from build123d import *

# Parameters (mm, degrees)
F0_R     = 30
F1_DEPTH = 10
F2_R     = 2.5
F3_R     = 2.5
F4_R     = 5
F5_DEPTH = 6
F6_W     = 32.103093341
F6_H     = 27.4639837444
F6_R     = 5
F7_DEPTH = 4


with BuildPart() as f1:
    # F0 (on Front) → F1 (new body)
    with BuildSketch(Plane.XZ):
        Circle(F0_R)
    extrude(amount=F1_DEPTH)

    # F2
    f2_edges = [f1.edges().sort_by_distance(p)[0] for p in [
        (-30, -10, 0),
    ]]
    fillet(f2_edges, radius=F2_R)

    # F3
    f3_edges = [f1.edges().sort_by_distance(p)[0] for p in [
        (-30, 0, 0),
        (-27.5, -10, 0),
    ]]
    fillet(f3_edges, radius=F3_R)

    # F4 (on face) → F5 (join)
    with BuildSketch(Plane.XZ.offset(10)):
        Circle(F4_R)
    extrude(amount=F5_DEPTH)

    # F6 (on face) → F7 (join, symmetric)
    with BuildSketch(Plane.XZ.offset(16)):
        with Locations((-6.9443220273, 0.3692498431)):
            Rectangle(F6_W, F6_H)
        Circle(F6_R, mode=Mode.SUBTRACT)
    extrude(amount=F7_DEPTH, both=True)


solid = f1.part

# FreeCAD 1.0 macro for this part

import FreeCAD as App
import Part
import Sketcher

V = App.Vector


def edges_at(feature, points):
    """Names of the edges that pass closest to the given points."""
    edges = feature.Shape.Edges
    near = lambda p: min(range(len(edges)), key=lambda i: edges[i].distToShape(Part.Vertex(*p))[0])
    return sorted({f"Edge{near(p) + 1}" for p in points})


def add_polygon(sketch, points):
    """Adds a closed chain of lines whose ends are joined by coincident constraints."""
    first, n = sketch.GeometryCount, len(points)
    for a, b in zip(points, points[1:] + points[:1]):
        sketch.addGeometry(Part.LineSegment(App.Vector(*a, 0), App.Vector(*b, 0)), False)
    for i in range(n):
        sketch.addConstraint(Sketcher.Constraint("Coincident", first + i, 2, first + (i + 1) % n, 1))

doc = App.newDocument("Part")
body = doc.addObject("PartDesign::Body", "Body")

# Sketch on XZ plane
sketch1 = body.newObject("Sketcher::SketchObject", "Sketch")
sketch1.AttachmentSupport = (doc.getObject("XZ_Plane"), [""])
sketch1.MapMode = "FlatFace"
sketch1.addGeometry(Part.Circle(V(0, 0, 0), V(0, 0, 1), 30), False)
sketch1.addConstraint(Sketcher.Constraint("Coincident", 0, 3, -1, 1))
sketch1.addConstraint(Sketcher.Constraint("Diameter", 0, 60.0))
pad1 = body.newObject("PartDesign::Pad", "Pad")
pad1.Profile = sketch1
pad1.Length = 10
doc.recompute()

fillet = body.newObject("PartDesign::Fillet", "Fillet")
fillet.Base = (pad1, edges_at(pad1, [(-30, -10, 0)]))
fillet.Radius = 2.5
doc.recompute()

fillet2 = body.newObject("PartDesign::Fillet", "Fillet001")
fillet2.Base = (fillet, edges_at(fillet, [(-30, 0, 0), (-27.5, -10, 0)]))
fillet2.Radius = 2.5

# Sketch on XZ plane
sketch2 = body.newObject("Sketcher::SketchObject", "Sketch001")
sketch2.AttachmentSupport = (doc.getObject("XZ_Plane"), [""])
sketch2.MapMode = "FlatFace"
sketch2.AttachmentOffset = App.Placement(V(0, 0, 10), App.Rotation())
sketch2.addGeometry(Part.Circle(V(0, 0, 0), V(0, 0, 1), 5), False)
sketch2.addConstraint(Sketcher.Constraint("Coincident", 0, 3, -1, 1))
sketch2.addConstraint(Sketcher.Constraint("Diameter", 0, 10.0))
pad2 = body.newObject("PartDesign::Pad", "Pad001")
pad2.Profile = sketch2
pad2.Length = 6

# Sketch on XZ plane
sketch3 = body.newObject("Sketcher::SketchObject", "Sketch002")
sketch3.AttachmentSupport = (doc.getObject("XZ_Plane"), [""])
sketch3.MapMode = "FlatFace"
sketch3.AttachmentOffset = App.Placement(V(0, 0, 16), App.Rotation())
add_polygon(sketch3, [(-23, 14), (-23, -13), (9, -13), (9, 14)])  # lines 0-3
sketch3.addGeometry(Part.Circle(V(0, 0, 0), V(0, 0, 1), 5), False)  # 4
sketch3.addConstraint(Sketcher.Constraint("Vertical", 0))
sketch3.addConstraint(Sketcher.Constraint("Horizontal", 1))
sketch3.addConstraint(Sketcher.Constraint("Vertical", 2))
sketch3.addConstraint(Sketcher.Constraint("Horizontal", 3))
sketch3.addConstraint(Sketcher.Constraint("Coincident", 4, 3, -1, 1))
sketch3.addConstraint(Sketcher.Constraint("Diameter", 4, 10.0))
sketch3.addConstraint(Sketcher.Constraint("DistanceX", 1, 1, 1, 2, 32.103093))
sketch3.addConstraint(Sketcher.Constraint("DistanceY", 0, 2, 0, 1, 27.463984))
sketch3.addConstraint(Sketcher.Constraint("DistanceX", 0, 2, -1, 1, 22.995869))
sketch3.addConstraint(Sketcher.Constraint("DistanceY", -1, 1, 2, 2, 14.101242))
pad3 = body.newObject("PartDesign::Pad", "Pad002")
pad3.Profile = sketch3
pad3.Length = 8
pad3.Midplane = True

doc.recompute()
